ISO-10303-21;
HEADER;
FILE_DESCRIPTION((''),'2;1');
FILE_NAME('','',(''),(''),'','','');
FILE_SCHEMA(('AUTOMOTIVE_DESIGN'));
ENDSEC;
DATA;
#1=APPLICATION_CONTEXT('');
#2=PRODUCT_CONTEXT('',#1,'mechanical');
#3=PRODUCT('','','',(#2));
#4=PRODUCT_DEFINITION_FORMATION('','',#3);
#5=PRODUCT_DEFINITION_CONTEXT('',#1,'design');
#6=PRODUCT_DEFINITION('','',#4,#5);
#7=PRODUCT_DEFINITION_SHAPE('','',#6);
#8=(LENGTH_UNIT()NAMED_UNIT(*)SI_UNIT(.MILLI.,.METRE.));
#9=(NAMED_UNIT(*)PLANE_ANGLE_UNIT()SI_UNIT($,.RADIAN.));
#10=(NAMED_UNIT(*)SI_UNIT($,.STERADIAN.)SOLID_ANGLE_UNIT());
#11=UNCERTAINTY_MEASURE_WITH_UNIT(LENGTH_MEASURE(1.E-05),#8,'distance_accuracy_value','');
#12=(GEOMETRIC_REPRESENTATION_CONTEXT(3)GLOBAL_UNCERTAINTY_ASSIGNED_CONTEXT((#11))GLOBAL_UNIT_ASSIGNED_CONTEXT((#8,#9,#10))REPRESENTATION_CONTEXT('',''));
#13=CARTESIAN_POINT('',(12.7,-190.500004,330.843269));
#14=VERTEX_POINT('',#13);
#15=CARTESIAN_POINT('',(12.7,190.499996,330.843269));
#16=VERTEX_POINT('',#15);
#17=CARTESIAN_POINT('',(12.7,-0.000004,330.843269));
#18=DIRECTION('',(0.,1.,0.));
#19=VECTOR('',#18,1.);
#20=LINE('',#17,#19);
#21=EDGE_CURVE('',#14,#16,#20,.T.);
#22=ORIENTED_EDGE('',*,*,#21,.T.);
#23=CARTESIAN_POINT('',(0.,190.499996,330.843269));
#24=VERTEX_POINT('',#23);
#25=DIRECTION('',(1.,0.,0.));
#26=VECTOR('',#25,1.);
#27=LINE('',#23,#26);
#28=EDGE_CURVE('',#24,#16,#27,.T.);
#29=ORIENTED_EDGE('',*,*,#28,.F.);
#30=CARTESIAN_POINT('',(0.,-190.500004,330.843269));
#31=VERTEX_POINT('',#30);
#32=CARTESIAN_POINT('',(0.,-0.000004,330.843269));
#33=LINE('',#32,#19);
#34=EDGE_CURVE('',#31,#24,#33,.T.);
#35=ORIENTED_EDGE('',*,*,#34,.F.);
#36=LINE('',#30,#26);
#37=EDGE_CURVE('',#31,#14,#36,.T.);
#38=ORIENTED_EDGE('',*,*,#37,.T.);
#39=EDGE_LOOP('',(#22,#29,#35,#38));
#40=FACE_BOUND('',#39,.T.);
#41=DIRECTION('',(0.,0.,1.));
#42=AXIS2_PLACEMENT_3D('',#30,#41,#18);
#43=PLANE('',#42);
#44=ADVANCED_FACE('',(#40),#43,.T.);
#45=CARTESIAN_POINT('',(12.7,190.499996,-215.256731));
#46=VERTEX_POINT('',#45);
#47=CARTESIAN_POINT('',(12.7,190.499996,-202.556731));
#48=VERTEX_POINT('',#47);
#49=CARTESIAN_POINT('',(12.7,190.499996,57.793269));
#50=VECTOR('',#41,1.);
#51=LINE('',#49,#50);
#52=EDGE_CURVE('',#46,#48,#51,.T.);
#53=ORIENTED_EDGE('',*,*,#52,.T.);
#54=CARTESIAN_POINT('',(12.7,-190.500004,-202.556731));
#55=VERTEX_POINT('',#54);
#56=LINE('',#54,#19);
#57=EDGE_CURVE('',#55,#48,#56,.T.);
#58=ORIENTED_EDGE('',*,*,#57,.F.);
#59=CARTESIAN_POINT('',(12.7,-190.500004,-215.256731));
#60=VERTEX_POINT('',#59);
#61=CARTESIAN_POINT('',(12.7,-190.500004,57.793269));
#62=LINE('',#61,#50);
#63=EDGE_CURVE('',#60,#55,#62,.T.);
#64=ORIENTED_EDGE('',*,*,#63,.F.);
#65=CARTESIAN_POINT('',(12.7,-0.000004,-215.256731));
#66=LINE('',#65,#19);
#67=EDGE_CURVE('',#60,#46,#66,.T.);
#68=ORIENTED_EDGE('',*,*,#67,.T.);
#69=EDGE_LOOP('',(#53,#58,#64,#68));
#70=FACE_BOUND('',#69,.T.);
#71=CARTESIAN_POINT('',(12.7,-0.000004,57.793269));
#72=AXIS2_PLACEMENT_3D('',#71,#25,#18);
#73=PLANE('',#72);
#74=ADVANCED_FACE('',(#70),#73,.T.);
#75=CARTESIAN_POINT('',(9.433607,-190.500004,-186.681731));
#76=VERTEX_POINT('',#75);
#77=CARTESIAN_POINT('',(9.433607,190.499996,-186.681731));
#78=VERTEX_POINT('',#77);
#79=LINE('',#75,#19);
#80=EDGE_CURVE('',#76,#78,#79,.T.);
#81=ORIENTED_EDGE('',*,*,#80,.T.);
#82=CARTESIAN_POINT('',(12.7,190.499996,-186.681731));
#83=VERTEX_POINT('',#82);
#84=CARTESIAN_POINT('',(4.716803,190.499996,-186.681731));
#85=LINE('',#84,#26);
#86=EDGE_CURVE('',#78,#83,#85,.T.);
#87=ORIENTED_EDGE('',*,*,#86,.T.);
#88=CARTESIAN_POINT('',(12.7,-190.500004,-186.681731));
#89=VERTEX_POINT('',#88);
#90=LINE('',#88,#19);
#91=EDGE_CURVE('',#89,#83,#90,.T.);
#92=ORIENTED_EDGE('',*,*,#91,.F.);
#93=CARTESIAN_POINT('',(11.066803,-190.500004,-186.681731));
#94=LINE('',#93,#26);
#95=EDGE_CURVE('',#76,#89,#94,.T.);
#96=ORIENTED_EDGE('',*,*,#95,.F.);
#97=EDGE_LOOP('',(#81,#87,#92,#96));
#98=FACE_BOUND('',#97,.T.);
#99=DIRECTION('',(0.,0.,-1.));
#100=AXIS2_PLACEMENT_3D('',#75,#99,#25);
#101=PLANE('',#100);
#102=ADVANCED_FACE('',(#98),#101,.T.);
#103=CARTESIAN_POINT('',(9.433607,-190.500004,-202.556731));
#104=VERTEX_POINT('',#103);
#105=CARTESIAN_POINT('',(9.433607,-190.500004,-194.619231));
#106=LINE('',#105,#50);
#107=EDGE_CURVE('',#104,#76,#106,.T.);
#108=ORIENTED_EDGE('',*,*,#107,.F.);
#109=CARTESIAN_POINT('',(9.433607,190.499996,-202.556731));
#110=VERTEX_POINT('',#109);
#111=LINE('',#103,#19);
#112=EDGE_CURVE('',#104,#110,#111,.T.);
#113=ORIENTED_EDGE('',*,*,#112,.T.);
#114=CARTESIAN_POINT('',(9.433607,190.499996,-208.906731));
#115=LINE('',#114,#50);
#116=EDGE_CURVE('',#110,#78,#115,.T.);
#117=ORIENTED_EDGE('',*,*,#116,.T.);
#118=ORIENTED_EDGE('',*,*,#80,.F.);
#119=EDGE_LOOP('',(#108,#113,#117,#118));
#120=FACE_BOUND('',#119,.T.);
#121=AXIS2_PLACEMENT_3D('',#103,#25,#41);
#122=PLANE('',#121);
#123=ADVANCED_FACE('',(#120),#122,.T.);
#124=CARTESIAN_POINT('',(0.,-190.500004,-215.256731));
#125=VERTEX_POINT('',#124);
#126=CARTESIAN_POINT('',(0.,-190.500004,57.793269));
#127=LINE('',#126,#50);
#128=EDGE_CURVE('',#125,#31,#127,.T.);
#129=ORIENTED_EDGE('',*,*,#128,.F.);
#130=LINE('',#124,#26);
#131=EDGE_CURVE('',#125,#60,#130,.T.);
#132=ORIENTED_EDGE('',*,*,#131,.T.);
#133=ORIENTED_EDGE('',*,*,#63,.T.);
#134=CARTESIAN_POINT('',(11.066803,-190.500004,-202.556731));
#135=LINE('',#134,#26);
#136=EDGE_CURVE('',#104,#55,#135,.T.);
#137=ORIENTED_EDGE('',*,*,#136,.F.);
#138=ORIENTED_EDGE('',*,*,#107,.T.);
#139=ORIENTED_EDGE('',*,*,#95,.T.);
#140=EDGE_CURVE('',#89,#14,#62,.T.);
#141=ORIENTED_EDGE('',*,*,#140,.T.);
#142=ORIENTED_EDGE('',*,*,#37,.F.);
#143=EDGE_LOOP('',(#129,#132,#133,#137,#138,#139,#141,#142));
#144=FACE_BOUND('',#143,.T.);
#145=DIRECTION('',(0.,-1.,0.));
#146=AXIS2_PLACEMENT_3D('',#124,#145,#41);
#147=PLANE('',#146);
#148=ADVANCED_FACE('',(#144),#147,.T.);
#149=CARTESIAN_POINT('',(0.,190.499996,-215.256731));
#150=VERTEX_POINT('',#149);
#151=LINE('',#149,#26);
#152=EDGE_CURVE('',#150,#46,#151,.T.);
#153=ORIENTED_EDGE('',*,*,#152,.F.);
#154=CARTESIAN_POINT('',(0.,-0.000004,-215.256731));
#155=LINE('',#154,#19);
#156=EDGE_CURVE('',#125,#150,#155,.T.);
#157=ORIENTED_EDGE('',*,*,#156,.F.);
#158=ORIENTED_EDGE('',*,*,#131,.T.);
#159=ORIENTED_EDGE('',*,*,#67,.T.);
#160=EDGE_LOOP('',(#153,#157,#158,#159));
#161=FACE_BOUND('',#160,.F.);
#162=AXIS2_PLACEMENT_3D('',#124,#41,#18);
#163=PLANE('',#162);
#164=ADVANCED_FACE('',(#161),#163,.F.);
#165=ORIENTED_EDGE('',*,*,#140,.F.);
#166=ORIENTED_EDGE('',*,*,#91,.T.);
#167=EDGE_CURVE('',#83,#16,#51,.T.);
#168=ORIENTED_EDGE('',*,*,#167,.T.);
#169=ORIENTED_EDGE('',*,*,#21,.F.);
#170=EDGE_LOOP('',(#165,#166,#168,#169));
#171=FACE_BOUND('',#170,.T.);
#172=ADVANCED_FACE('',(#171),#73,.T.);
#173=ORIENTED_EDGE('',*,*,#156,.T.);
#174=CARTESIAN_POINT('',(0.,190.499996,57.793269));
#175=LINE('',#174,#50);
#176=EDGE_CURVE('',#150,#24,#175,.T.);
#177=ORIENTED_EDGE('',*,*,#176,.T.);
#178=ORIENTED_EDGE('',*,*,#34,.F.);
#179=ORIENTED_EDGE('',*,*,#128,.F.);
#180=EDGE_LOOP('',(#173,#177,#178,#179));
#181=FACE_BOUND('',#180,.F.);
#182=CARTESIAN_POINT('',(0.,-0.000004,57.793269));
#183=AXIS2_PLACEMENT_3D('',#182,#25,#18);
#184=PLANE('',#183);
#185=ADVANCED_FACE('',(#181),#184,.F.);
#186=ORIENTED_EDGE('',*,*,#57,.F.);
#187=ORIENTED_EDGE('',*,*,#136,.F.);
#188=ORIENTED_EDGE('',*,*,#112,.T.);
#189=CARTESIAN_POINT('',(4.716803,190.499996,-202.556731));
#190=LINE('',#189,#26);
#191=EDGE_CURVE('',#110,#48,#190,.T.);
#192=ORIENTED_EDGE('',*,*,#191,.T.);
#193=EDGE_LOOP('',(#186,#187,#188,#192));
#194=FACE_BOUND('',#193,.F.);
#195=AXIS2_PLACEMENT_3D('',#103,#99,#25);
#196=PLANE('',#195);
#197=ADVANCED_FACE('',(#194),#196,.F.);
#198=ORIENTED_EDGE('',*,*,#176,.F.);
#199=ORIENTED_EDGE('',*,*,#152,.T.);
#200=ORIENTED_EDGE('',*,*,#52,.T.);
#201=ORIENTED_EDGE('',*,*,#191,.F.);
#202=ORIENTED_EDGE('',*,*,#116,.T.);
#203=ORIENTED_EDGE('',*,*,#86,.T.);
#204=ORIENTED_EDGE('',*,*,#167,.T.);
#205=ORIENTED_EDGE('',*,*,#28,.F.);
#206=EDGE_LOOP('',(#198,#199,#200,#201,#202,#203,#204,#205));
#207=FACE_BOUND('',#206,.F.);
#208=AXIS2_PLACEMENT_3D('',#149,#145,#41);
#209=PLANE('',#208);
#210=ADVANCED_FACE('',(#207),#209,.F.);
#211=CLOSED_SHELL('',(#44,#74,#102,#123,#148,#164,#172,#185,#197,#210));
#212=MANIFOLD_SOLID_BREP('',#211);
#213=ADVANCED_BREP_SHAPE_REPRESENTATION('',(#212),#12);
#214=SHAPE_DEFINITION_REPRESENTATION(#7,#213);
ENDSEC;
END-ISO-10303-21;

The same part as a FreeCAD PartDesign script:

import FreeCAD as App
import Part
import Sketcher
Q = App.Units.Quantity

doc = App.newDocument("Part")
body = doc.addObject("PartDesign::Body", "Body")

sketch1 = body.newObject("Sketcher::SketchObject", "Sketch")
sketch1.AttachmentSupport = (doc.getObject("YZ_Plane"), [""])
sketch1.MapMode = "FlatFace"
sketch1.addGeometry([
    Part.LineSegment(App.Vector(-191, 331, 0), App.Vector(-191, -215, 0)),
    Part.LineSegment(App.Vector(-191, -215, 0), App.Vector(190, -215, 0)),
    Part.LineSegment(App.Vector(190, -215, 0), App.Vector(190, 331, 0)),
    Part.LineSegment(App.Vector(190, 331, 0), App.Vector(-191, 331, 0)),
], False)
sketch1.addConstraint([
    Sketcher.Constraint("Coincident", 0, 2, 1, 1),
    Sketcher.Constraint("Coincident", 1, 2, 2, 1),
    Sketcher.Constraint("Coincident", 2, 2, 3, 1),
    Sketcher.Constraint("Coincident", 3, 2, 0, 1),
    Sketcher.Constraint("Vertical", 0),
    Sketcher.Constraint("Horizontal", 1),
    Sketcher.Constraint("Vertical", 2),
    Sketcher.Constraint("Horizontal", 3),
    Sketcher.Constraint("DistanceX", 1, 1, 1, 2, Q("15 in")),
    Sketcher.Constraint("DistanceY", 0, 2, 0, 1, Q("21.5 in")),
    Sketcher.Constraint("DistanceX", 0, 2, -1, 1, Q("7.5000001 in")),
    Sketcher.Constraint("DistanceY", 0, 2, -1, 1, Q("215.256731 mm")),
])
pad1 = body.newObject("PartDesign::Pad", "Pad")
pad1.Profile = sketch1
pad1.Length = Q("0.5 in")

sketch2 = body.newObject("Sketcher::SketchObject", "Sketch001")
sketch2.AttachmentSupport = (doc.getObject("XZ_Plane"), [""])
sketch2.MapMode = "FlatFace"
sketch2.AttachmentOffset = App.Placement(App.Vector(0, 0, 7.5000001 * 25.4), App.Rotation())
sketch2.addGeometry([
    Part.LineSegment(App.Vector(9.4, -186.7, 0), App.Vector(9.4, -202.6, 0)),
    Part.LineSegment(App.Vector(9.4, -202.6, 0), App.Vector(12.7, -202.6, 0)),
    Part.LineSegment(App.Vector(12.7, -202.6, 0), App.Vector(12.7, -186.7, 0)),
    Part.LineSegment(App.Vector(12.7, -186.7, 0), App.Vector(9.4, -186.7, 0)),
], False)
sketch2.addConstraint([
    Sketcher.Constraint("Coincident", 0, 2, 1, 1),
    Sketcher.Constraint("Coincident", 1, 2, 2, 1),
    Sketcher.Constraint("Coincident", 2, 2, 3, 1),
    Sketcher.Constraint("Coincident", 3, 2, 0, 1),
    Sketcher.Constraint("Vertical", 0),
    Sketcher.Constraint("Horizontal", 1),
    Sketcher.Constraint("Vertical", 2),
    Sketcher.Constraint("Horizontal", 3),
    Sketcher.Constraint("DistanceX", -1, 1, 1, 2, Q("0.5 in")),
    Sketcher.Constraint("DistanceY", 0, 2, 0, 1, Q("0.625 in")),
    Sketcher.Constraint("DistanceX", 1, 1, 1, 2, Q("3.266393 mm")),
    Sketcher.Constraint("DistanceY", 0, 2, -1, 1, Q("202.556731 mm")),
])
pocket1 = body.newObject("PartDesign::Pocket", "Pocket")
pocket1.Profile = sketch2
pocket1.Length = Q("16.71 in")

doc.recompute()
